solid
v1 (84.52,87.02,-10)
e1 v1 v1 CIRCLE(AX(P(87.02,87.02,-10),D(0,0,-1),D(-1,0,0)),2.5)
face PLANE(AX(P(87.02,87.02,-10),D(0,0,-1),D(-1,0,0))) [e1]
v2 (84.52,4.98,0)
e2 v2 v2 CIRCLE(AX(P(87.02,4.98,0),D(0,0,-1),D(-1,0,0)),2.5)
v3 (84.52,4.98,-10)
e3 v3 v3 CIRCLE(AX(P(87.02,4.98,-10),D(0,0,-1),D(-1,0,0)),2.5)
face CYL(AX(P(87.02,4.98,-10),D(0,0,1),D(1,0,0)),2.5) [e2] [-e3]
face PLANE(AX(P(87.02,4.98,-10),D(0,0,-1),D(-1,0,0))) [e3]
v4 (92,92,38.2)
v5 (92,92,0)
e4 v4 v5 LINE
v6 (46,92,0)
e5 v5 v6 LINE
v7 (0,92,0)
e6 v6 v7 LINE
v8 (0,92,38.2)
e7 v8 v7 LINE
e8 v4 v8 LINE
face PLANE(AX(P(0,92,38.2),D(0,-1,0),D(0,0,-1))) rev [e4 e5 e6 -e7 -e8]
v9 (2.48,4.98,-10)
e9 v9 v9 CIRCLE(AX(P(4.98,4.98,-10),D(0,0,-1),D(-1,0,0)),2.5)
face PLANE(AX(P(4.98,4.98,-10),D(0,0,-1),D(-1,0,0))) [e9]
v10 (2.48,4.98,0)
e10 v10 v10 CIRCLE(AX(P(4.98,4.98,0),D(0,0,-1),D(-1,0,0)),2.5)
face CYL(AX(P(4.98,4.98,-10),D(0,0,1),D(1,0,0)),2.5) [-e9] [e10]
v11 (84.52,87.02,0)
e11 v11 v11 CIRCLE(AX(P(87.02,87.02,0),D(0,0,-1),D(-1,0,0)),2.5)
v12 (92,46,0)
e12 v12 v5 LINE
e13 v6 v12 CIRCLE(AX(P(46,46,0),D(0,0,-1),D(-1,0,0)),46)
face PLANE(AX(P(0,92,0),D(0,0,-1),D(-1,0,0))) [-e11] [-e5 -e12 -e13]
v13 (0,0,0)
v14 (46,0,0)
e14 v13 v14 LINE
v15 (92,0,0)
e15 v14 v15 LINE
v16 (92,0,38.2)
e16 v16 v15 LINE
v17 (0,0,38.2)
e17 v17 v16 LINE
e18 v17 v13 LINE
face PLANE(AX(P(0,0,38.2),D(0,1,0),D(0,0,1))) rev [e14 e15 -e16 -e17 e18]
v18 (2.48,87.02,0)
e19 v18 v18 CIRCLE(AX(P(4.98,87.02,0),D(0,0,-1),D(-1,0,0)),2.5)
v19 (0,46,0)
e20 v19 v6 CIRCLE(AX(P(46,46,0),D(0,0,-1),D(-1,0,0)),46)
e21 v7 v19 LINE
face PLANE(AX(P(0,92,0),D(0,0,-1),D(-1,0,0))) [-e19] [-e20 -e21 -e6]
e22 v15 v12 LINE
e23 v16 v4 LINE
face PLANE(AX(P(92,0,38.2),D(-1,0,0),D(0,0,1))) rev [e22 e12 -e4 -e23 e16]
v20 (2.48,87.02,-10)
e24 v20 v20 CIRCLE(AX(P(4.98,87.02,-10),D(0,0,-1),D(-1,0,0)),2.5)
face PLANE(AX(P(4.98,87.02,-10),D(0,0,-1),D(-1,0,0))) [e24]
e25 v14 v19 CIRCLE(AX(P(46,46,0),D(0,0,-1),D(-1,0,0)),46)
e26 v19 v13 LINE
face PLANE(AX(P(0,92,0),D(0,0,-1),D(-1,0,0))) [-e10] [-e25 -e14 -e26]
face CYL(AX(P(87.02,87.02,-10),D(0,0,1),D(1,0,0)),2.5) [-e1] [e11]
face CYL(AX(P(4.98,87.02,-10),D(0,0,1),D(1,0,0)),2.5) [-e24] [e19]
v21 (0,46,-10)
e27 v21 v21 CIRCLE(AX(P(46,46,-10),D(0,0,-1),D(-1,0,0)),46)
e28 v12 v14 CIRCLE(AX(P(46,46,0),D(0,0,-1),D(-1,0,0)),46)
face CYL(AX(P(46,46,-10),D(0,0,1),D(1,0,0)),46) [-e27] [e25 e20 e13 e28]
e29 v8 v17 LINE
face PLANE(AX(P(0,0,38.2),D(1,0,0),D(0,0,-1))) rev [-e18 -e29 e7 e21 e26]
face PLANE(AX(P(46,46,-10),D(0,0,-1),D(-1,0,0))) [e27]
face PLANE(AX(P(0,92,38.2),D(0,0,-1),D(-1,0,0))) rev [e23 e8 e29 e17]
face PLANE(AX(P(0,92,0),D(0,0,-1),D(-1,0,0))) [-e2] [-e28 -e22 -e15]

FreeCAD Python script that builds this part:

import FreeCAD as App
import Part
import Sketcher

doc = App.newDocument("Part")
body = doc.addObject("PartDesign::Body", "Body")

sketch1 = doc.addObject("Sketcher::SketchObject", "Sketch")
body.addObject(sketch1)
sketch1.AttachmentSupport = (doc.XY_Plane, [""])
sketch1.MapMode = "FlatFace"
sketch1.addGeometry([
    Part.LineSegment(App.Vector(0, 92, 0), App.Vector(0, 0, 0)),
    Part.LineSegment(App.Vector(0, 0, 0), App.Vector(92, 0, 0)),
    Part.LineSegment(App.Vector(92, 0, 0), App.Vector(92, 92, 0)),
    Part.LineSegment(App.Vector(92, 92, 0), App.Vector(0, 92, 0)),
], False)
sketch1.addConstraint([
    Sketcher.Constraint("Coincident", 0, 2, 1, 1),
    Sketcher.Constraint("Coincident", 1, 2, 2, 1),
    Sketcher.Constraint("Coincident", 2, 2, 3, 1),
    Sketcher.Constraint("Coincident", 3, 2, 0, 1),
    Sketcher.Constraint("Vertical", 0),
    Sketcher.Constraint("Horizontal", 1),
    Sketcher.Constraint("Vertical", 2),
    Sketcher.Constraint("Horizontal", 3),
    Sketcher.Constraint("Coincident", 0, 2, -1, 1),
    Sketcher.Constraint("Equal", 3, 0),
    Sketcher.Constraint("DistanceX", 1, 1, 1, 2, 92.0),
])
pad1 = doc.addObject("PartDesign::Pad", "Pad")
body.addObject(pad1)
pad1.Profile = sketch1
pad1.Length = 38.2

sketch2 = doc.addObject("Sketcher::SketchObject", "Sketch001")
body.addObject(sketch2)
sketch2.AttachmentSupport = (doc.XY_Plane, [""])
sketch2.MapMode = "FlatFace"
sketch2.addGeometry([
    Part.Circle(App.Vector(4.98, 4.98, 0), App.Vector(0, 0, 1), 2.5),
    Part.Circle(App.Vector(87.02, 4.98, 0), App.Vector(0, 0, 1), 2.5),
    Part.Circle(App.Vector(87.02, 87.02, 0), App.Vector(0, 0, 1), 2.5),
    Part.Circle(App.Vector(4.98, 87.02, 0), App.Vector(0, 0, 1), 2.5),
], False)
sketch2.addConstraint([
    Sketcher.Constraint("Equal", 0, 1),
    Sketcher.Constraint("Equal", 1, 2),
    Sketcher.Constraint("Equal", 2, 3),
    Sketcher.Constraint("Horizontal", 0, 3, 1, 3),
    Sketcher.Constraint("Horizontal", 2, 3, 3, 3),
    Sketcher.Constraint("Vertical", 1, 3, 2, 3),
    Sketcher.Constraint("Vertical", 0, 3, 3, 3),
    Sketcher.Constraint("Diameter", 0, 5.0),
    Sketcher.Constraint("DistanceX", -1, 1, 0, 3, 4.98),
    Sketcher.Constraint("DistanceY", -1, 1, 0, 3, 4.98),
    Sketcher.Constraint("DistanceX", -1, 1, 1, 3, 87.02),
    Sketcher.Constraint("DistanceY", -1, 1, 2, 3, 87.02),
])
pad2 = doc.addObject("PartDesign::Pad", "Pad001")
body.addObject(pad2)
pad2.Profile = sketch2
pad2.Length = 10
pad2.Reversed = True

sketch3 = doc.addObject("Sketcher::SketchObject", "Sketch002")
body.addObject(sketch3)
sketch3.AttachmentSupport = (doc.XY_Plane, [""])
sketch3.MapMode = "FlatFace"
sketch3.addGeometry(Part.Circle(App.Vector(46, 46, 0), App.Vector(0, 0, 1), 46), False)
sketch3.addConstraint([
    Sketcher.Constraint("Diameter", 0, 92.0),
    Sketcher.Constraint("DistanceX", -1, 1, 0, 3, 46.0),
    Sketcher.Constraint("DistanceY", -1, 1, 0, 3, 46.0),
])
pad3 = doc.addObject("PartDesign::Pad", "Pad002")
body.addObject(pad3)
pad3.Profile = sketch3
pad3.Length = 10
pad3.Reversed = True

doc.recompute()
